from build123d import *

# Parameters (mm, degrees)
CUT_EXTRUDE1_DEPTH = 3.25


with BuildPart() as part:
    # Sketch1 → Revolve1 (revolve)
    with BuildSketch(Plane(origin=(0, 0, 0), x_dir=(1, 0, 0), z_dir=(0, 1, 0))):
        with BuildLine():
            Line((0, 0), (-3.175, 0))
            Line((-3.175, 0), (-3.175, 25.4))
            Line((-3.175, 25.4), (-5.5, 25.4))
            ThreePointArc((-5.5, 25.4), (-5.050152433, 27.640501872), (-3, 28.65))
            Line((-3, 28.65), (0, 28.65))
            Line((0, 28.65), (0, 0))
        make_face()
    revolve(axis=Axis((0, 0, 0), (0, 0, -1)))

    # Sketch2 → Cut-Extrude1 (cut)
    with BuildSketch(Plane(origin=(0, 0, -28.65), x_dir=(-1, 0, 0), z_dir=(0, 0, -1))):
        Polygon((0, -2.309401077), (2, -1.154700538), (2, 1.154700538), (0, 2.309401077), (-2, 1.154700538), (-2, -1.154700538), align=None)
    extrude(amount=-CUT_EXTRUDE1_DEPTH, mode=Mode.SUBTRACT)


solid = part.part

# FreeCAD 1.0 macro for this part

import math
import FreeCAD as App
import Part
import Sketcher

V = App.Vector
Q = App.Units.Quantity


def add_polygon(sketch, points):
    """Adds a closed chain of lines whose ends are joined by coincident constraints."""
    first, n = sketch.GeometryCount, len(points)
    for a, b in zip(points, points[1:] + points[:1]):
        sketch.addGeometry(Part.LineSegment(App.Vector(*a, 0), App.Vector(*b, 0)), False)
    for i in range(n):
        sketch.addConstraint(Sketcher.Constraint("Coincident", first + i, 2, first + (i + 1) % n, 1))

doc = App.newDocument("Part")
body = doc.addObject("PartDesign::Body", "Body")

# Sketch on XZ plane
sketch1 = body.newObject("Sketcher::SketchObject", "Sketch")
sketch1.AttachmentSupport = (doc.getObject("XZ_Plane"), [""])
sketch1.MapMode = "FlatFace"
sketch1.addGeometry([
    Part.LineSegment(V(-3.2, 0, 0), V(0, 0, 0)),  # 0
    Part.LineSegment(V(0, 0, 0), V(0, -28.6, 0)),  # 1
    Part.LineSegment(V(0, -28.6, 0), V(-3, -28.6, 0)),  # 2
    Part.ArcOfCircle(Part.Circle(V(-3, -26.1, 0), V(0, 0, 1), 2.6), math.radians(165), math.radians(270)),  # 3
    Part.LineSegment(V(-5.5, -25.4, 0), V(-3.2, -25.4, 0)),  # 4
    Part.LineSegment(V(-3.2, -25.4, 0), V(-3.2, 0, 0)),  # 5
], False)
sketch1.addConstraint([
    Sketcher.Constraint("Coincident", 0, 2, 1, 1),
    Sketcher.Constraint("Coincident", 1, 2, 2, 1),
    Sketcher.Constraint("Tangent", 2, 2, 3, 2),
    Sketcher.Constraint("Coincident", 3, 1, 4, 1),
    Sketcher.Constraint("Coincident", 4, 2, 5, 1),
    Sketcher.Constraint("Coincident", 5, 2, 0, 1),
    Sketcher.Constraint("Horizontal", 0),
    Sketcher.Constraint("Vertical", 1),
    Sketcher.Constraint("Horizontal", 2),
    Sketcher.Constraint("Horizontal", 4),
    Sketcher.Constraint("Vertical", 5),
    Sketcher.Constraint("Coincident", 0, 2, -1, 1),
    Sketcher.Constraint("DistanceY", 5, 1, 5, 2, Q("1 in")),
    Sketcher.Constraint("DistanceX", 0, 1, 0, 2, Q("0.125 in")),
    Sketcher.Constraint("Radius", 3, 2.586538),
    Sketcher.Constraint("DistanceX", 2, 2, 2, 1, 3.0),
    Sketcher.Constraint("DistanceX", 4, 1, 4, 2, 2.325),
])
revolution = body.newObject("PartDesign::Revolution", "Revolution")
revolution.Profile = sketch1
revolution.ReferenceAxis = (sketch1, ["V_Axis"])
revolution.Angle = 360

# Sketch on XY plane
sketch2 = body.newObject("Sketcher::SketchObject", "Sketch001")
sketch2.AttachmentSupport = (doc.getObject("XY_Plane"), [""])
sketch2.MapMode = "FlatFace"
sketch2.AttachmentOffset = App.Placement(V(0, 0, -28.65), App.Rotation())
add_polygon(sketch2, [(0, -2.3), (-2, -1.2), (-2, 1.2), (0, 2.3), (2, 1.2), (2, -1.2)])  # lines 0-5
sketch2.addConstraint([
    Sketcher.Constraint("Vertical", 1),
    Sketcher.Constraint("Vertical", 4),
    Sketcher.Constraint("Symmetric", 0, 2, 3, 2, -1, 1),
    Sketcher.Constraint("Symmetric", 2, 2, 5, 2, -1, 1),
    Sketcher.Constraint("PointOnObject", 2, 2, -2),
    Sketcher.Constraint("Parallel", 2, 5),
    Sketcher.Constraint("Horizontal", 1, 2, 3, 2),
    Sketcher.Constraint("Angle", 0, Q("150 deg")),
    Sketcher.Constraint("DistanceY", 1, 1, 1, 2, 2.309401),
    Sketcher.Constraint("Distance", 0, 2.309401),
])
pocket1 = body.newObject("PartDesign::Pocket", "Pocket")
pocket1.Profile = sketch2
pocket1.Length = 3.25
pocket1.Reversed = True

doc.recompute()
